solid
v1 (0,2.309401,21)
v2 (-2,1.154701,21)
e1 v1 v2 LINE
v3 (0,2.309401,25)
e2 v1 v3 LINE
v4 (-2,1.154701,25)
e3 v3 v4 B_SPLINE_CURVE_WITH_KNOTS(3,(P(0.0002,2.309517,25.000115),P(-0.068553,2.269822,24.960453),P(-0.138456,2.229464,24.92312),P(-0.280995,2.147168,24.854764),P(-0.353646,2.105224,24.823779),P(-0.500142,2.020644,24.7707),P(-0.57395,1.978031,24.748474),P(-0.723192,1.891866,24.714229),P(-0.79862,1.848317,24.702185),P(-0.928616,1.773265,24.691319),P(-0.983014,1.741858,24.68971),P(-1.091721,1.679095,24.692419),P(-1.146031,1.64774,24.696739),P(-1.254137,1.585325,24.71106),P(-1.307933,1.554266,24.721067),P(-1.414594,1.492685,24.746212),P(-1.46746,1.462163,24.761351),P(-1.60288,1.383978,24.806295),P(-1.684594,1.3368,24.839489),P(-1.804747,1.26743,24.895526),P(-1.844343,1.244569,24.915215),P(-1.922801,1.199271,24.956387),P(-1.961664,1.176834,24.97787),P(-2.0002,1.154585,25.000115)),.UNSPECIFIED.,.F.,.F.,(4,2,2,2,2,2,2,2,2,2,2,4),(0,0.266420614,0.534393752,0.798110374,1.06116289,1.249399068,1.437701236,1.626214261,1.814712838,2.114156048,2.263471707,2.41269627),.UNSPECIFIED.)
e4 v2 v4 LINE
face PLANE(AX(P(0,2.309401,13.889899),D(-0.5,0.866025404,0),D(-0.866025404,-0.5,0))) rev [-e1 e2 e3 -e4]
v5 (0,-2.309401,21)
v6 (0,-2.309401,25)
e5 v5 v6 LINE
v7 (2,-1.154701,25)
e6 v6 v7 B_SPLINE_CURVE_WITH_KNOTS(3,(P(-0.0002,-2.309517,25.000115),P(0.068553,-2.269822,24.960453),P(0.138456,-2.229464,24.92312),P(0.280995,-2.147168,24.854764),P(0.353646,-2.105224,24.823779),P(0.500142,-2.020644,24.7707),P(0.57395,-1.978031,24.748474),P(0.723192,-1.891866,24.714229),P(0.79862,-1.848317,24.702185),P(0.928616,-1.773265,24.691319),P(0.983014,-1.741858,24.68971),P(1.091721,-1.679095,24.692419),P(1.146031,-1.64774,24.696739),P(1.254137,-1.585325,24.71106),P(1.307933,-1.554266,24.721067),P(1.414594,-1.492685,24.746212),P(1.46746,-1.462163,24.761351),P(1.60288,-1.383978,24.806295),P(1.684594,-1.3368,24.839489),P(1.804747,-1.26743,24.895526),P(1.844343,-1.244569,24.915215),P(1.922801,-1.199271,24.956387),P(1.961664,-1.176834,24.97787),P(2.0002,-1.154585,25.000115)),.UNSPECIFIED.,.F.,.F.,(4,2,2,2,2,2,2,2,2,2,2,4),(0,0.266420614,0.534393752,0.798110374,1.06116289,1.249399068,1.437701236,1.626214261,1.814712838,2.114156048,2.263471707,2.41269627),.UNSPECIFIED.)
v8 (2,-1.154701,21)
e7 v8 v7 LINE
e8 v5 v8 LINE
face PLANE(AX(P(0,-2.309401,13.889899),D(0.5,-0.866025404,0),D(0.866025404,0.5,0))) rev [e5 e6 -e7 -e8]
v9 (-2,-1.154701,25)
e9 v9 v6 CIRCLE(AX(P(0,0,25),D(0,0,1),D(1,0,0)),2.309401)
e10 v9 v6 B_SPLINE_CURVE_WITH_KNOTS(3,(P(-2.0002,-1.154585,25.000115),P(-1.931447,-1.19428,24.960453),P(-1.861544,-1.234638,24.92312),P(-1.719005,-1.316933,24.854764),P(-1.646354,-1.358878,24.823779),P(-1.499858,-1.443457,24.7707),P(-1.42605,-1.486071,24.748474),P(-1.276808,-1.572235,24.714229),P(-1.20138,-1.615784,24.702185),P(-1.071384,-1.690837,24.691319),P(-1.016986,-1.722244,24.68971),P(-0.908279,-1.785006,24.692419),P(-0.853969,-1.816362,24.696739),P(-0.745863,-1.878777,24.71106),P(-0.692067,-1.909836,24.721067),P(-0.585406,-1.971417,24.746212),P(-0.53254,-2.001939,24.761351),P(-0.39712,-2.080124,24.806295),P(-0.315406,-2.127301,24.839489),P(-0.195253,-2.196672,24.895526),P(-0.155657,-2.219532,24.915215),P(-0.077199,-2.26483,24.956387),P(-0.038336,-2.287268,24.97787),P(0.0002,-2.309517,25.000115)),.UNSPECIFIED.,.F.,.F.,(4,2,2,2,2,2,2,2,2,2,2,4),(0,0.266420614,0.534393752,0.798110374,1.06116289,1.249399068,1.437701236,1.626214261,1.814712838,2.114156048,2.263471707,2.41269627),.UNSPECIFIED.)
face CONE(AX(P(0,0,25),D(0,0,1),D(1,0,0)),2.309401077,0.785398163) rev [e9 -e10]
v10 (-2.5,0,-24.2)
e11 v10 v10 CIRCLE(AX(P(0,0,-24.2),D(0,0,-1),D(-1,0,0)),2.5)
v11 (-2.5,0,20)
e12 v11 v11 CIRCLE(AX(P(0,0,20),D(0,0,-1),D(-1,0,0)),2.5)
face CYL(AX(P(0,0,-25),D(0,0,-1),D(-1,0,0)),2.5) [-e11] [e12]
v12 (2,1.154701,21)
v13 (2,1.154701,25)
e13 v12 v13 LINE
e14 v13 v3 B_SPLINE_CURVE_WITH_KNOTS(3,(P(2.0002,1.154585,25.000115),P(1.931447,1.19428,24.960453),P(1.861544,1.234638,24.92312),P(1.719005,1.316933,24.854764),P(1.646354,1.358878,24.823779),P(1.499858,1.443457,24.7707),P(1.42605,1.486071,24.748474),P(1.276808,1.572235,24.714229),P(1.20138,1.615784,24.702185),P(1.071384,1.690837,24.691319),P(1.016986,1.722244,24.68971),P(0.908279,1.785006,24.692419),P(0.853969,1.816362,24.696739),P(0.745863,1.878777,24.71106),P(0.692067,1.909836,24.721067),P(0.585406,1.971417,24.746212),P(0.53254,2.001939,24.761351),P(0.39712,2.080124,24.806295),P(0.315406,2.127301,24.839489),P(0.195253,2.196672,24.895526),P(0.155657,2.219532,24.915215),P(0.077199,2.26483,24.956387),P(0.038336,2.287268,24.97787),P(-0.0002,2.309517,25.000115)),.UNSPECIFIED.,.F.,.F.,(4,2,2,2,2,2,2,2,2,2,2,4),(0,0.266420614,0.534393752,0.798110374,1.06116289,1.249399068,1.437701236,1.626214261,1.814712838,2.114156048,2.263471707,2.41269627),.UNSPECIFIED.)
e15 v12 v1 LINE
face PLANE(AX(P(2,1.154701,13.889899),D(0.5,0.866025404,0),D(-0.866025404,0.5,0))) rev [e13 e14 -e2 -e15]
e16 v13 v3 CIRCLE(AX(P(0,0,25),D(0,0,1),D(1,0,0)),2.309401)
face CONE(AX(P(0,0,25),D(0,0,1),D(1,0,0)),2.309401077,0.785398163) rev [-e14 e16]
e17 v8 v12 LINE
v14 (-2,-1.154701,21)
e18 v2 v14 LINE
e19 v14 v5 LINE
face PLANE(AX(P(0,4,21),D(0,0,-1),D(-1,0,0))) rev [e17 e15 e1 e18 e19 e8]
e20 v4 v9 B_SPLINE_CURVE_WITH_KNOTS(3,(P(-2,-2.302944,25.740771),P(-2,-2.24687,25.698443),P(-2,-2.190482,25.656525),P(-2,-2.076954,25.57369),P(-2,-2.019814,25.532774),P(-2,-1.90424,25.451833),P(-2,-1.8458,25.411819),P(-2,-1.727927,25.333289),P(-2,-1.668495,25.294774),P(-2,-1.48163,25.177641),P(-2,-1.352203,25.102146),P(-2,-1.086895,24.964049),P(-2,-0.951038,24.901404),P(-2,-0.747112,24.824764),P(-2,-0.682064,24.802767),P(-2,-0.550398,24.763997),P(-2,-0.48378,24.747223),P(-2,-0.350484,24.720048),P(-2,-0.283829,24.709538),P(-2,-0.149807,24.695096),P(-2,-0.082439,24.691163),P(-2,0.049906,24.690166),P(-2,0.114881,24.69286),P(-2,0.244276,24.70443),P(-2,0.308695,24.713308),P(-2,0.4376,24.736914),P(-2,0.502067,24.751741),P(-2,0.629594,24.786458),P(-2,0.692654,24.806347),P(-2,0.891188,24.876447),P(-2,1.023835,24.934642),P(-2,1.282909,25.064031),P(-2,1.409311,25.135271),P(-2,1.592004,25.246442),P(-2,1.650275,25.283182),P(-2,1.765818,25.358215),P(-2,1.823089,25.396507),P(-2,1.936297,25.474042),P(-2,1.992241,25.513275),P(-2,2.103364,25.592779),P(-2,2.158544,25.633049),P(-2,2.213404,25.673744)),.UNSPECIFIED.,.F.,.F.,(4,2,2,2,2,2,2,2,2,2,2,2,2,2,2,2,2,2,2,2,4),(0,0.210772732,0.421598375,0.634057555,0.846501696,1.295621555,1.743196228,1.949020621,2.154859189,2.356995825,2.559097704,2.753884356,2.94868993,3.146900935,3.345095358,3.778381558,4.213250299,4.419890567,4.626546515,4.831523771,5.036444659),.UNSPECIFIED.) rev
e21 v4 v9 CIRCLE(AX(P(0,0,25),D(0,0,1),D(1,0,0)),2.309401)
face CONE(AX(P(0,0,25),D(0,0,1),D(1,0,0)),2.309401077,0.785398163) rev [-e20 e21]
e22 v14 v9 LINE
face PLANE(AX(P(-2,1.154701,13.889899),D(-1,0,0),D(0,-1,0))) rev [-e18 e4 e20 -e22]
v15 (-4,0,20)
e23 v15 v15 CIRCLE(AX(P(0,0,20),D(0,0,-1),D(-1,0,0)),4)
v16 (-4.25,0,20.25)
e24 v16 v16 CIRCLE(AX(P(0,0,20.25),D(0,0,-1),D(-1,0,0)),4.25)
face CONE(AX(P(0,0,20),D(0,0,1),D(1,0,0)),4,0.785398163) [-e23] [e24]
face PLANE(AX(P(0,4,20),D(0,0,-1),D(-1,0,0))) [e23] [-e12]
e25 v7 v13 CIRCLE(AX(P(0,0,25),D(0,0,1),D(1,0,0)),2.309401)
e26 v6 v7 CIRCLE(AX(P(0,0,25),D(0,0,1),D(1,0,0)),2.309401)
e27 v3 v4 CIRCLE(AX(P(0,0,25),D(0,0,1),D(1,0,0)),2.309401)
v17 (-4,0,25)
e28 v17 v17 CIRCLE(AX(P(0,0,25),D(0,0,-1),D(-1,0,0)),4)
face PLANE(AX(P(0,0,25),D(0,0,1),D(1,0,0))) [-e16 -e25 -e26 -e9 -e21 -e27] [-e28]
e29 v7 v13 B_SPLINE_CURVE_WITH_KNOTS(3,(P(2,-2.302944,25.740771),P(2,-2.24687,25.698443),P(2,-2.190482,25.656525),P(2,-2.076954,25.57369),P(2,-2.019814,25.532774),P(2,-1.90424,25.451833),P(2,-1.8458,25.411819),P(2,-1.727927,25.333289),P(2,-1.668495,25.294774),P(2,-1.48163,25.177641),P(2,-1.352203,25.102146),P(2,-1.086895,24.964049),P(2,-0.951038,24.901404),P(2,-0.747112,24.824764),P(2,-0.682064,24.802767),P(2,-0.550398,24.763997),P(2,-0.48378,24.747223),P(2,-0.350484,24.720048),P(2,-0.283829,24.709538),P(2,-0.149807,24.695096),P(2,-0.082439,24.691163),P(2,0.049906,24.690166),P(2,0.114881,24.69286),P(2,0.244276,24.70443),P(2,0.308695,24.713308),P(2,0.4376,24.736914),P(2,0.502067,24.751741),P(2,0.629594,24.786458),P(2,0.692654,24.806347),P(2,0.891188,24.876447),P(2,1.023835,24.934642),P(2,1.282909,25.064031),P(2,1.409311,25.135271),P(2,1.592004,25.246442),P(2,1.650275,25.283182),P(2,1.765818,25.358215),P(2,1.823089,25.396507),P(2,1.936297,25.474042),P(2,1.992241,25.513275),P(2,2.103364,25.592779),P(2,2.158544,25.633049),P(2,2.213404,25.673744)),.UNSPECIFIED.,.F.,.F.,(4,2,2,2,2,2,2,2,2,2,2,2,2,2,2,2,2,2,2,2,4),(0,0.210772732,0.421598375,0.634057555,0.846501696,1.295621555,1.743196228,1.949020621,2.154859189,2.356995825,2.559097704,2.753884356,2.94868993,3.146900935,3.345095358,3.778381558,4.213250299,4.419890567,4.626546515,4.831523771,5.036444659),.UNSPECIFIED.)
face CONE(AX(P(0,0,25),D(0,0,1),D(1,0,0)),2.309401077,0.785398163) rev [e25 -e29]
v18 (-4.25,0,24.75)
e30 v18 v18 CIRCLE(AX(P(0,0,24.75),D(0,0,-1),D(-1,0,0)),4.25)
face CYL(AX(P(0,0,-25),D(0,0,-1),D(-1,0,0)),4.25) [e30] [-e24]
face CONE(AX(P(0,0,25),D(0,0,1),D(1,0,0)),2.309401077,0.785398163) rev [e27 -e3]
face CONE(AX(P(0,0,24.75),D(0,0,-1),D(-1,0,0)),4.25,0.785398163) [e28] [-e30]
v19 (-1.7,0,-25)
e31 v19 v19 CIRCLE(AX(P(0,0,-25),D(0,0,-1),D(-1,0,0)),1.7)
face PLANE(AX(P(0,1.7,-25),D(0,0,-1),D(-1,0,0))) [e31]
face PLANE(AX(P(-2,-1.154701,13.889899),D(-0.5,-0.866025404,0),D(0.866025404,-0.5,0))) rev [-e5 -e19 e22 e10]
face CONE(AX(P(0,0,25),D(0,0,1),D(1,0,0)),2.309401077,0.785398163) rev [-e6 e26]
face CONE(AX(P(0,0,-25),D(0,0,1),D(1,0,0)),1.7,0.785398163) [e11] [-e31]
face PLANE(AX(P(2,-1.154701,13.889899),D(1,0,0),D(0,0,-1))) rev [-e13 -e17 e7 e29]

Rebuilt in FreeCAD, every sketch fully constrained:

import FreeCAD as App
import Part
import Sketcher

V = App.Vector
Q = App.Units.Quantity

doc = App.newDocument("Part")
body = doc.addObject("PartDesign::Body", "Body")

# Sketch on YZ plane
sketch1 = body.newObject("Sketcher::SketchObject", "Sketch")
sketch1.AttachmentSupport = (doc.getObject("YZ_Plane"), [""])
sketch1.MapMode = "FlatFace"
sketch1.addGeometry(Part.LineSegment(V(4, 25, 0), V(0, 25, 0)), False)
sketch1.addGeometry(Part.LineSegment(V(0, 25, 0), V(0, -25, 0)), False)
sketch1.addGeometry(Part.LineSegment(V(0, -25, 0), V(1.7, -25, 0)), False)
sketch1.addGeometry(Part.LineSegment(V(1.7, -25, 0), V(2.5, -24.2, 0)), False)
sketch1.addGeometry(Part.LineSegment(V(2.5, -24.2, 0), V(2.5, 20, 0)), False)
sketch1.addGeometry(Part.LineSegment(V(2.5, 20, 0), V(4, 20, 0)), False)
sketch1.addGeometry(Part.LineSegment(V(4, 20, 0), V(4.25, 20.25, 0)), False)
sketch1.addGeometry(Part.LineSegment(V(4.25, 20.25, 0), V(4.25, 24.75, 0)), False)
sketch1.addGeometry(Part.LineSegment(V(4.25, 24.75, 0), V(4, 25, 0)), False)
sketch1.addConstraint(Sketcher.Constraint("Coincident", 0, 2, 1, 1))
sketch1.addConstraint(Sketcher.Constraint("Coincident", 1, 2, 2, 1))
sketch1.addConstraint(Sketcher.Constraint("Coincident", 2, 2, 3, 1))
sketch1.addConstraint(Sketcher.Constraint("Coincident", 3, 2, 4, 1))
sketch1.addConstraint(Sketcher.Constraint("Coincident", 4, 2, 5, 1))
sketch1.addConstraint(Sketcher.Constraint("Coincident", 5, 2, 6, 1))
sketch1.addConstraint(Sketcher.Constraint("Coincident", 6, 2, 7, 1))
sketch1.addConstraint(Sketcher.Constraint("Coincident", 7, 2, 8, 1))
sketch1.addConstraint(Sketcher.Constraint("Coincident", 8, 2, 0, 1))
sketch1.addConstraint(Sketcher.Constraint("Horizontal", 0))
sketch1.addConstraint(Sketcher.Constraint("Vertical", 1))
sketch1.addConstraint(Sketcher.Constraint("Horizontal", 2))
sketch1.addConstraint(Sketcher.Constraint("Vertical", 4))
sketch1.addConstraint(Sketcher.Constraint("Horizontal", 5))
sketch1.addConstraint(Sketcher.Constraint("Vertical", 7))
sketch1.addConstraint(Sketcher.Constraint("Symmetric", 0, 2, 1, 2, -1, 1))
sketch1.addConstraint(Sketcher.Constraint("Parallel", 3, 6))
sketch1.addConstraint(Sketcher.Constraint("Perpendicular", 6, 8))
sketch1.addConstraint(Sketcher.Constraint("Vertical", 5, 2, 8, 2))
sketch1.addConstraint(Sketcher.Constraint("Equal", 6, 8))
sketch1.addConstraint(Sketcher.Constraint("DistanceX", 0, 2, 0, 1, Q("4 mm")))
sketch1.addConstraint(Sketcher.Constraint("DistanceY", 1, 2, 1, 1, Q("50 mm")))
sketch1.addConstraint(Sketcher.Constraint("DistanceX", 2, 1, 2, 2, Q("1.7 mm")))
sketch1.addConstraint(Sketcher.Constraint("DistanceX", 5, 1, 5, 2, Q("1.5 mm")))
sketch1.addConstraint(Sketcher.Constraint("DistanceY", 4, 1, 4, 2, Q("44.2 mm")))
sketch1.addConstraint(Sketcher.Constraint("DistanceY", 7, 1, 7, 2, Q("4.5 mm")))
revolution = body.newObject("PartDesign::Revolution", "Revolution")
revolution.Profile = sketch1
revolution.ReferenceAxis = (sketch1, ["V_Axis"])
revolution.Angle = 360

# Sketch on XY plane
sketch2 = body.newObject("Sketcher::SketchObject", "Sketch001")
sketch2.AttachmentSupport = (doc.getObject("XY_Plane"), [""])
sketch2.MapMode = "FlatFace"
sketch2.AttachmentOffset = App.Placement(V(0, 0, 25), App.Rotation())
sketch2.addGeometry(Part.LineSegment(V(2, -1.2, 0), V(2, 1.2, 0)), False)
sketch2.addGeometry(Part.LineSegment(V(2, 1.2, 0), V(0, 2.3, 0)), False)
sketch2.addGeometry(Part.LineSegment(V(0, 2.3, 0), V(-2, 1.2, 0)), False)
sketch2.addGeometry(Part.LineSegment(V(-2, 1.2, 0), V(-2, -1.2, 0)), False)
sketch2.addGeometry(Part.LineSegment(V(-2, -1.2, 0), V(0, -2.3, 0)), False)
sketch2.addGeometry(Part.LineSegment(V(0, -2.3, 0), V(2, -1.2, 0)), False)
sketch2.addConstraint(Sketcher.Constraint("Coincident", 0, 2, 1, 1))
sketch2.addConstraint(Sketcher.Constraint("Coincident", 1, 2, 2, 1))
sketch2.addConstraint(Sketcher.Constraint("Coincident", 2, 2, 3, 1))
sketch2.addConstraint(Sketcher.Constraint("Coincident", 3, 2, 4, 1))
sketch2.addConstraint(Sketcher.Constraint("Coincident", 4, 2, 5, 1))
sketch2.addConstraint(Sketcher.Constraint("Coincident", 5, 2, 0, 1))
sketch2.addConstraint(Sketcher.Constraint("Vertical", 0))
sketch2.addConstraint(Sketcher.Constraint("Vertical", 3))
sketch2.addConstraint(Sketcher.Constraint("Symmetric", 0, 2, 3, 2, -1, 1))
sketch2.addConstraint(Sketcher.Constraint("Symmetric", 1, 2, 4, 2, -1, 1))
sketch2.addConstraint(Sketcher.Constraint("PointOnObject", 1, 2, -2))
sketch2.addConstraint(Sketcher.Constraint("Parallel", 2, 5))
sketch2.addConstraint(Sketcher.Constraint("Horizontal", 0, 2, 2, 2))
sketch2.addConstraint(Sketcher.Constraint("Angle", 1, Q("150 deg")))
sketch2.addConstraint(Sketcher.Constraint("DistanceX", -1, 1, 0, 2, Q("2 mm")))
sketch2.addConstraint(Sketcher.Constraint("DistanceY", 0, 1, 0, 2, Q("2.309401 mm")))
pocket1 = body.newObject("PartDesign::Pocket", "Pocket")
pocket1.Profile = sketch2
pocket1.Length = 4

# Sketch on YZ plane
sketch3 = body.newObject("Sketcher::SketchObject", "Sketch002")
sketch3.AttachmentSupport = (doc.getObject("YZ_Plane"), [""])
sketch3.MapMode = "FlatFace"
sketch3.addGeometry(Part.LineSegment(V(0, 25, 0), V(-2.3, 25, 0)), False)
sketch3.addGeometry(Part.LineSegment(V(-2.3, 25, 0), V(0, 22.7, 0)), False)
sketch3.addGeometry(Part.LineSegment(V(0, 22.7, 0), V(0, 25, 0)), False)
sketch3.addConstraint(Sketcher.Constraint("Coincident", 0, 2, 1, 1))
sketch3.addConstraint(Sketcher.Constraint("Coincident", 1, 2, 2, 1))
sketch3.addConstraint(Sketcher.Constraint("Coincident", 2, 2, 0, 1))
sketch3.addConstraint(Sketcher.Constraint("Horizontal", 0))
sketch3.addConstraint(Sketcher.Constraint("Vertical", 2))
sketch3.addConstraint(Sketcher.Constraint("PointOnObject", 1, 2, -2))
sketch3.addConstraint(Sketcher.Constraint("Equal", 0, 2))
sketch3.addConstraint(Sketcher.Constraint("DistanceY", -1, 1, 0, 2, Q("25 mm")))
sketch3.addConstraint(Sketcher.Constraint("DistanceX", 0, 2, 0, 1, Q("2.309401 mm")))
groove = body.newObject("PartDesign::Groove", "Groove")
groove.Profile = sketch3
groove.ReferenceAxis = (sketch3, ["V_Axis"])
groove.Angle = 360

doc.recompute()
